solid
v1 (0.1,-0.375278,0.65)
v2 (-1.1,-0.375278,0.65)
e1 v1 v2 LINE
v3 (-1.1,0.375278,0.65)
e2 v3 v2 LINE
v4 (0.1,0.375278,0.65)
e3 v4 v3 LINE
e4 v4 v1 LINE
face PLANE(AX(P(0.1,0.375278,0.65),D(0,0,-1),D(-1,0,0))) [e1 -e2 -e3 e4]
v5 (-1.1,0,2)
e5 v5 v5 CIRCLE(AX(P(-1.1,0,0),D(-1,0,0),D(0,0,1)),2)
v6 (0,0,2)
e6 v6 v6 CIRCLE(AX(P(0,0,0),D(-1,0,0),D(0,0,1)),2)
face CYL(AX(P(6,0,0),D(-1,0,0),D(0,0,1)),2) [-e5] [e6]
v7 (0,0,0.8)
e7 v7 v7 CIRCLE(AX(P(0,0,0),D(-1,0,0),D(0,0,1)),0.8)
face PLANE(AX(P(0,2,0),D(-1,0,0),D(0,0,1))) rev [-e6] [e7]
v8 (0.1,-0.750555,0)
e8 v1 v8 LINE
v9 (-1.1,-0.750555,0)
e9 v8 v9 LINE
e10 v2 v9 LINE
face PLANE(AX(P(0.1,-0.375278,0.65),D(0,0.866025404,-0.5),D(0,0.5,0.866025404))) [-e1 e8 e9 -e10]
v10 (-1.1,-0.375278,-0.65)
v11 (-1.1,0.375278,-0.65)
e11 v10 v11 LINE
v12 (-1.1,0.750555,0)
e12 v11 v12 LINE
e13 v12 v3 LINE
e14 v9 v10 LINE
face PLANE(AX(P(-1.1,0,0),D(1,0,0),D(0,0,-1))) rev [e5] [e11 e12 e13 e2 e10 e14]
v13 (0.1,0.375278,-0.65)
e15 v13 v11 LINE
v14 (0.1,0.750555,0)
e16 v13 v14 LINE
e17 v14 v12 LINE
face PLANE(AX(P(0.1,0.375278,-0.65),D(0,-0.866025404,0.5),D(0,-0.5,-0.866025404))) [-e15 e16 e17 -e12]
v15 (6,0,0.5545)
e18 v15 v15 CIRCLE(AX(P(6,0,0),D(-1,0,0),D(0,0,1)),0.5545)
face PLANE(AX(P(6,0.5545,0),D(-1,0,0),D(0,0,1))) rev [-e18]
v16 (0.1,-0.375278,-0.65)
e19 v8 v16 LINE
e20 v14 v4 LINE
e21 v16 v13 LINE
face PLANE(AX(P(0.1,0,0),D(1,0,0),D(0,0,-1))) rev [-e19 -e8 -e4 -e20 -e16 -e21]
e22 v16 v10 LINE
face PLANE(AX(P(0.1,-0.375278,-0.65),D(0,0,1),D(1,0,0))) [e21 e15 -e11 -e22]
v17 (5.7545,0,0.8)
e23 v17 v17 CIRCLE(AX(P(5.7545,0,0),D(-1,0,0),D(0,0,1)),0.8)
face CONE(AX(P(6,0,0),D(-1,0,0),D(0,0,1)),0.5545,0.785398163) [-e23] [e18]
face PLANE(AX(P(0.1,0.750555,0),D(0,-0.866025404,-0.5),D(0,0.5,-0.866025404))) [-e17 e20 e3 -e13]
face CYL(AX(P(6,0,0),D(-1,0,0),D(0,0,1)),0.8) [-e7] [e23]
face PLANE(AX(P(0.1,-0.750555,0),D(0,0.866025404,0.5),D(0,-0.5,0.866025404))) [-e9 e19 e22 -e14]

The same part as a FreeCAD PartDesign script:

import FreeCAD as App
import Part
import Sketcher
Q = App.Units.Quantity

doc = App.newDocument("Part")
body = doc.addObject("PartDesign::Body", "Body")

# Sketch on XY plane
sketch1 = body.newObject("Sketcher::SketchObject", "Sketch")
sketch1.AttachmentSupport = (doc.getObject("XY_Plane"), [""])
sketch1.MapMode = "FlatFace"
sketch1.addGeometry(Part.LineSegment(App.Vector(-1.1, 2, 0), App.Vector(-1.1, 0, 0)), False)
sketch1.addGeometry(Part.LineSegment(App.Vector(-1.1, 0, 0), App.Vector(6, 0, 0)), False)
sketch1.addGeometry(Part.LineSegment(App.Vector(6, 0, 0), App.Vector(6, 0.55, 0)), False)
sketch1.addGeometry(Part.LineSegment(App.Vector(6, 0.55, 0), App.Vector(5.75, 0.8, 0)), False)
sketch1.addGeometry(Part.LineSegment(App.Vector(5.75, 0.8, 0), App.Vector(0, 0.8, 0)), False)
sketch1.addGeometry(Part.LineSegment(App.Vector(0, 0.8, 0), App.Vector(0, 2, 0)), False)
sketch1.addGeometry(Part.LineSegment(App.Vector(0, 2, 0), App.Vector(-1.1, 2, 0)), False)
sketch1.addConstraint(Sketcher.Constraint("Coincident", 0, 2, 1, 1))
sketch1.addConstraint(Sketcher.Constraint("Coincident", 1, 2, 2, 1))
sketch1.addConstraint(Sketcher.Constraint("Coincident", 2, 2, 3, 1))
sketch1.addConstraint(Sketcher.Constraint("Coincident", 3, 2, 4, 1))
sketch1.addConstraint(Sketcher.Constraint("Coincident", 4, 2, 5, 1))
sketch1.addConstraint(Sketcher.Constraint("Coincident", 5, 2, 6, 1))
sketch1.addConstraint(Sketcher.Constraint("Coincident", 6, 2, 0, 1))
sketch1.addConstraint(Sketcher.Constraint("Vertical", 0))
sketch1.addConstraint(Sketcher.Constraint("Horizontal", 1))
sketch1.addConstraint(Sketcher.Constraint("Vertical", 2))
sketch1.addConstraint(Sketcher.Constraint("Horizontal", 4))
sketch1.addConstraint(Sketcher.Constraint("Vertical", 5))
sketch1.addConstraint(Sketcher.Constraint("Horizontal", 6))
sketch1.addConstraint(Sketcher.Constraint("PointOnObject", 0, 2, -1))
sketch1.addConstraint(Sketcher.Constraint("PointOnObject", 4, 2, -2))
sketch1.addConstraint(Sketcher.Constraint("DistanceY", 0, 2, 0, 1, Q("2 mm")))
sketch1.addConstraint(Sketcher.Constraint("Angle", 3, Q("135 deg")))
sketch1.addConstraint(Sketcher.Constraint("DistanceX", 1, 1, 1, 2, Q("7.1 mm")))
sketch1.addConstraint(Sketcher.Constraint("DistanceX", 6, 2, 6, 1, Q("1.1 mm")))
sketch1.addConstraint(Sketcher.Constraint("DistanceY", 5, 1, 5, 2, Q("1.2 mm")))
sketch1.addConstraint(Sketcher.Constraint("DistanceX", 4, 2, 4, 1, Q("5.7545 mm")))
revolution = body.newObject("PartDesign::Revolution", "Revolution")
revolution.Profile = sketch1
revolution.ReferenceAxis = (sketch1, ["H_Axis"])
revolution.Angle = 360

# Sketch on YZ plane
sketch2 = body.newObject("Sketcher::SketchObject", "Sketch001")
sketch2.AttachmentSupport = (doc.getObject("YZ_Plane"), [""])
sketch2.MapMode = "FlatFace"
sketch2.AttachmentOffset = App.Placement(App.Vector(0, 0, -1.1), App.Rotation())
sketch2.addGeometry(Part.LineSegment(App.Vector(-0.4, 0.7, 0), App.Vector(-0.8, 0, 0)), False)
sketch2.addGeometry(Part.LineSegment(App.Vector(-0.8, 0, 0), App.Vector(-0.4, -0.7, 0)), False)
sketch2.addGeometry(Part.LineSegment(App.Vector(-0.4, -0.7, 0), App.Vector(0.4, -0.7, 0)), False)
sketch2.addGeometry(Part.LineSegment(App.Vector(0.4, -0.7, 0), App.Vector(0.8, 0, 0)), False)
sketch2.addGeometry(Part.LineSegment(App.Vector(0.8, 0, 0), App.Vector(0.4, 0.7, 0)), False)
sketch2.addGeometry(Part.LineSegment(App.Vector(0.4, 0.7, 0), App.Vector(-0.4, 0.7, 0)), False)
sketch2.addConstraint(Sketcher.Constraint("Coincident", 0, 2, 1, 1))
sketch2.addConstraint(Sketcher.Constraint("Coincident", 1, 2, 2, 1))
sketch2.addConstraint(Sketcher.Constraint("Coincident", 2, 2, 3, 1))
sketch2.addConstraint(Sketcher.Constraint("Coincident", 3, 2, 4, 1))
sketch2.addConstraint(Sketcher.Constraint("Coincident", 4, 2, 5, 1))
sketch2.addConstraint(Sketcher.Constraint("Coincident", 5, 2, 0, 1))
sketch2.addConstraint(Sketcher.Constraint("Horizontal", 2))
sketch2.addConstraint(Sketcher.Constraint("Horizontal", 5))
sketch2.addConstraint(Sketcher.Constraint("Symmetric", 0, 2, 3, 2, -1, 1))
sketch2.addConstraint(Sketcher.Constraint("Symmetric", 1, 2, 4, 2, -1, 1))
sketch2.addConstraint(Sketcher.Constraint("PointOnObject", 0, 2, -1))
sketch2.addConstraint(Sketcher.Constraint("Parallel", 0, 3))
sketch2.addConstraint(Sketcher.Constraint("Vertical", 2, 2, 4, 2))
sketch2.addConstraint(Sketcher.Constraint("Angle", 0, Q("-120 deg")))
sketch2.addConstraint(Sketcher.Constraint("DistanceY", 2, 2, 4, 2, Q("1.3 mm")))
sketch2.addConstraint(Sketcher.Constraint("DistanceX", 2, 1, 2, 2, Q("0.750555 mm")))
pocket1 = body.newObject("PartDesign::Pocket", "Pocket")
pocket1.Profile = sketch2
pocket1.Length = 1.2
pocket1.Reversed = True

doc.recompute()
